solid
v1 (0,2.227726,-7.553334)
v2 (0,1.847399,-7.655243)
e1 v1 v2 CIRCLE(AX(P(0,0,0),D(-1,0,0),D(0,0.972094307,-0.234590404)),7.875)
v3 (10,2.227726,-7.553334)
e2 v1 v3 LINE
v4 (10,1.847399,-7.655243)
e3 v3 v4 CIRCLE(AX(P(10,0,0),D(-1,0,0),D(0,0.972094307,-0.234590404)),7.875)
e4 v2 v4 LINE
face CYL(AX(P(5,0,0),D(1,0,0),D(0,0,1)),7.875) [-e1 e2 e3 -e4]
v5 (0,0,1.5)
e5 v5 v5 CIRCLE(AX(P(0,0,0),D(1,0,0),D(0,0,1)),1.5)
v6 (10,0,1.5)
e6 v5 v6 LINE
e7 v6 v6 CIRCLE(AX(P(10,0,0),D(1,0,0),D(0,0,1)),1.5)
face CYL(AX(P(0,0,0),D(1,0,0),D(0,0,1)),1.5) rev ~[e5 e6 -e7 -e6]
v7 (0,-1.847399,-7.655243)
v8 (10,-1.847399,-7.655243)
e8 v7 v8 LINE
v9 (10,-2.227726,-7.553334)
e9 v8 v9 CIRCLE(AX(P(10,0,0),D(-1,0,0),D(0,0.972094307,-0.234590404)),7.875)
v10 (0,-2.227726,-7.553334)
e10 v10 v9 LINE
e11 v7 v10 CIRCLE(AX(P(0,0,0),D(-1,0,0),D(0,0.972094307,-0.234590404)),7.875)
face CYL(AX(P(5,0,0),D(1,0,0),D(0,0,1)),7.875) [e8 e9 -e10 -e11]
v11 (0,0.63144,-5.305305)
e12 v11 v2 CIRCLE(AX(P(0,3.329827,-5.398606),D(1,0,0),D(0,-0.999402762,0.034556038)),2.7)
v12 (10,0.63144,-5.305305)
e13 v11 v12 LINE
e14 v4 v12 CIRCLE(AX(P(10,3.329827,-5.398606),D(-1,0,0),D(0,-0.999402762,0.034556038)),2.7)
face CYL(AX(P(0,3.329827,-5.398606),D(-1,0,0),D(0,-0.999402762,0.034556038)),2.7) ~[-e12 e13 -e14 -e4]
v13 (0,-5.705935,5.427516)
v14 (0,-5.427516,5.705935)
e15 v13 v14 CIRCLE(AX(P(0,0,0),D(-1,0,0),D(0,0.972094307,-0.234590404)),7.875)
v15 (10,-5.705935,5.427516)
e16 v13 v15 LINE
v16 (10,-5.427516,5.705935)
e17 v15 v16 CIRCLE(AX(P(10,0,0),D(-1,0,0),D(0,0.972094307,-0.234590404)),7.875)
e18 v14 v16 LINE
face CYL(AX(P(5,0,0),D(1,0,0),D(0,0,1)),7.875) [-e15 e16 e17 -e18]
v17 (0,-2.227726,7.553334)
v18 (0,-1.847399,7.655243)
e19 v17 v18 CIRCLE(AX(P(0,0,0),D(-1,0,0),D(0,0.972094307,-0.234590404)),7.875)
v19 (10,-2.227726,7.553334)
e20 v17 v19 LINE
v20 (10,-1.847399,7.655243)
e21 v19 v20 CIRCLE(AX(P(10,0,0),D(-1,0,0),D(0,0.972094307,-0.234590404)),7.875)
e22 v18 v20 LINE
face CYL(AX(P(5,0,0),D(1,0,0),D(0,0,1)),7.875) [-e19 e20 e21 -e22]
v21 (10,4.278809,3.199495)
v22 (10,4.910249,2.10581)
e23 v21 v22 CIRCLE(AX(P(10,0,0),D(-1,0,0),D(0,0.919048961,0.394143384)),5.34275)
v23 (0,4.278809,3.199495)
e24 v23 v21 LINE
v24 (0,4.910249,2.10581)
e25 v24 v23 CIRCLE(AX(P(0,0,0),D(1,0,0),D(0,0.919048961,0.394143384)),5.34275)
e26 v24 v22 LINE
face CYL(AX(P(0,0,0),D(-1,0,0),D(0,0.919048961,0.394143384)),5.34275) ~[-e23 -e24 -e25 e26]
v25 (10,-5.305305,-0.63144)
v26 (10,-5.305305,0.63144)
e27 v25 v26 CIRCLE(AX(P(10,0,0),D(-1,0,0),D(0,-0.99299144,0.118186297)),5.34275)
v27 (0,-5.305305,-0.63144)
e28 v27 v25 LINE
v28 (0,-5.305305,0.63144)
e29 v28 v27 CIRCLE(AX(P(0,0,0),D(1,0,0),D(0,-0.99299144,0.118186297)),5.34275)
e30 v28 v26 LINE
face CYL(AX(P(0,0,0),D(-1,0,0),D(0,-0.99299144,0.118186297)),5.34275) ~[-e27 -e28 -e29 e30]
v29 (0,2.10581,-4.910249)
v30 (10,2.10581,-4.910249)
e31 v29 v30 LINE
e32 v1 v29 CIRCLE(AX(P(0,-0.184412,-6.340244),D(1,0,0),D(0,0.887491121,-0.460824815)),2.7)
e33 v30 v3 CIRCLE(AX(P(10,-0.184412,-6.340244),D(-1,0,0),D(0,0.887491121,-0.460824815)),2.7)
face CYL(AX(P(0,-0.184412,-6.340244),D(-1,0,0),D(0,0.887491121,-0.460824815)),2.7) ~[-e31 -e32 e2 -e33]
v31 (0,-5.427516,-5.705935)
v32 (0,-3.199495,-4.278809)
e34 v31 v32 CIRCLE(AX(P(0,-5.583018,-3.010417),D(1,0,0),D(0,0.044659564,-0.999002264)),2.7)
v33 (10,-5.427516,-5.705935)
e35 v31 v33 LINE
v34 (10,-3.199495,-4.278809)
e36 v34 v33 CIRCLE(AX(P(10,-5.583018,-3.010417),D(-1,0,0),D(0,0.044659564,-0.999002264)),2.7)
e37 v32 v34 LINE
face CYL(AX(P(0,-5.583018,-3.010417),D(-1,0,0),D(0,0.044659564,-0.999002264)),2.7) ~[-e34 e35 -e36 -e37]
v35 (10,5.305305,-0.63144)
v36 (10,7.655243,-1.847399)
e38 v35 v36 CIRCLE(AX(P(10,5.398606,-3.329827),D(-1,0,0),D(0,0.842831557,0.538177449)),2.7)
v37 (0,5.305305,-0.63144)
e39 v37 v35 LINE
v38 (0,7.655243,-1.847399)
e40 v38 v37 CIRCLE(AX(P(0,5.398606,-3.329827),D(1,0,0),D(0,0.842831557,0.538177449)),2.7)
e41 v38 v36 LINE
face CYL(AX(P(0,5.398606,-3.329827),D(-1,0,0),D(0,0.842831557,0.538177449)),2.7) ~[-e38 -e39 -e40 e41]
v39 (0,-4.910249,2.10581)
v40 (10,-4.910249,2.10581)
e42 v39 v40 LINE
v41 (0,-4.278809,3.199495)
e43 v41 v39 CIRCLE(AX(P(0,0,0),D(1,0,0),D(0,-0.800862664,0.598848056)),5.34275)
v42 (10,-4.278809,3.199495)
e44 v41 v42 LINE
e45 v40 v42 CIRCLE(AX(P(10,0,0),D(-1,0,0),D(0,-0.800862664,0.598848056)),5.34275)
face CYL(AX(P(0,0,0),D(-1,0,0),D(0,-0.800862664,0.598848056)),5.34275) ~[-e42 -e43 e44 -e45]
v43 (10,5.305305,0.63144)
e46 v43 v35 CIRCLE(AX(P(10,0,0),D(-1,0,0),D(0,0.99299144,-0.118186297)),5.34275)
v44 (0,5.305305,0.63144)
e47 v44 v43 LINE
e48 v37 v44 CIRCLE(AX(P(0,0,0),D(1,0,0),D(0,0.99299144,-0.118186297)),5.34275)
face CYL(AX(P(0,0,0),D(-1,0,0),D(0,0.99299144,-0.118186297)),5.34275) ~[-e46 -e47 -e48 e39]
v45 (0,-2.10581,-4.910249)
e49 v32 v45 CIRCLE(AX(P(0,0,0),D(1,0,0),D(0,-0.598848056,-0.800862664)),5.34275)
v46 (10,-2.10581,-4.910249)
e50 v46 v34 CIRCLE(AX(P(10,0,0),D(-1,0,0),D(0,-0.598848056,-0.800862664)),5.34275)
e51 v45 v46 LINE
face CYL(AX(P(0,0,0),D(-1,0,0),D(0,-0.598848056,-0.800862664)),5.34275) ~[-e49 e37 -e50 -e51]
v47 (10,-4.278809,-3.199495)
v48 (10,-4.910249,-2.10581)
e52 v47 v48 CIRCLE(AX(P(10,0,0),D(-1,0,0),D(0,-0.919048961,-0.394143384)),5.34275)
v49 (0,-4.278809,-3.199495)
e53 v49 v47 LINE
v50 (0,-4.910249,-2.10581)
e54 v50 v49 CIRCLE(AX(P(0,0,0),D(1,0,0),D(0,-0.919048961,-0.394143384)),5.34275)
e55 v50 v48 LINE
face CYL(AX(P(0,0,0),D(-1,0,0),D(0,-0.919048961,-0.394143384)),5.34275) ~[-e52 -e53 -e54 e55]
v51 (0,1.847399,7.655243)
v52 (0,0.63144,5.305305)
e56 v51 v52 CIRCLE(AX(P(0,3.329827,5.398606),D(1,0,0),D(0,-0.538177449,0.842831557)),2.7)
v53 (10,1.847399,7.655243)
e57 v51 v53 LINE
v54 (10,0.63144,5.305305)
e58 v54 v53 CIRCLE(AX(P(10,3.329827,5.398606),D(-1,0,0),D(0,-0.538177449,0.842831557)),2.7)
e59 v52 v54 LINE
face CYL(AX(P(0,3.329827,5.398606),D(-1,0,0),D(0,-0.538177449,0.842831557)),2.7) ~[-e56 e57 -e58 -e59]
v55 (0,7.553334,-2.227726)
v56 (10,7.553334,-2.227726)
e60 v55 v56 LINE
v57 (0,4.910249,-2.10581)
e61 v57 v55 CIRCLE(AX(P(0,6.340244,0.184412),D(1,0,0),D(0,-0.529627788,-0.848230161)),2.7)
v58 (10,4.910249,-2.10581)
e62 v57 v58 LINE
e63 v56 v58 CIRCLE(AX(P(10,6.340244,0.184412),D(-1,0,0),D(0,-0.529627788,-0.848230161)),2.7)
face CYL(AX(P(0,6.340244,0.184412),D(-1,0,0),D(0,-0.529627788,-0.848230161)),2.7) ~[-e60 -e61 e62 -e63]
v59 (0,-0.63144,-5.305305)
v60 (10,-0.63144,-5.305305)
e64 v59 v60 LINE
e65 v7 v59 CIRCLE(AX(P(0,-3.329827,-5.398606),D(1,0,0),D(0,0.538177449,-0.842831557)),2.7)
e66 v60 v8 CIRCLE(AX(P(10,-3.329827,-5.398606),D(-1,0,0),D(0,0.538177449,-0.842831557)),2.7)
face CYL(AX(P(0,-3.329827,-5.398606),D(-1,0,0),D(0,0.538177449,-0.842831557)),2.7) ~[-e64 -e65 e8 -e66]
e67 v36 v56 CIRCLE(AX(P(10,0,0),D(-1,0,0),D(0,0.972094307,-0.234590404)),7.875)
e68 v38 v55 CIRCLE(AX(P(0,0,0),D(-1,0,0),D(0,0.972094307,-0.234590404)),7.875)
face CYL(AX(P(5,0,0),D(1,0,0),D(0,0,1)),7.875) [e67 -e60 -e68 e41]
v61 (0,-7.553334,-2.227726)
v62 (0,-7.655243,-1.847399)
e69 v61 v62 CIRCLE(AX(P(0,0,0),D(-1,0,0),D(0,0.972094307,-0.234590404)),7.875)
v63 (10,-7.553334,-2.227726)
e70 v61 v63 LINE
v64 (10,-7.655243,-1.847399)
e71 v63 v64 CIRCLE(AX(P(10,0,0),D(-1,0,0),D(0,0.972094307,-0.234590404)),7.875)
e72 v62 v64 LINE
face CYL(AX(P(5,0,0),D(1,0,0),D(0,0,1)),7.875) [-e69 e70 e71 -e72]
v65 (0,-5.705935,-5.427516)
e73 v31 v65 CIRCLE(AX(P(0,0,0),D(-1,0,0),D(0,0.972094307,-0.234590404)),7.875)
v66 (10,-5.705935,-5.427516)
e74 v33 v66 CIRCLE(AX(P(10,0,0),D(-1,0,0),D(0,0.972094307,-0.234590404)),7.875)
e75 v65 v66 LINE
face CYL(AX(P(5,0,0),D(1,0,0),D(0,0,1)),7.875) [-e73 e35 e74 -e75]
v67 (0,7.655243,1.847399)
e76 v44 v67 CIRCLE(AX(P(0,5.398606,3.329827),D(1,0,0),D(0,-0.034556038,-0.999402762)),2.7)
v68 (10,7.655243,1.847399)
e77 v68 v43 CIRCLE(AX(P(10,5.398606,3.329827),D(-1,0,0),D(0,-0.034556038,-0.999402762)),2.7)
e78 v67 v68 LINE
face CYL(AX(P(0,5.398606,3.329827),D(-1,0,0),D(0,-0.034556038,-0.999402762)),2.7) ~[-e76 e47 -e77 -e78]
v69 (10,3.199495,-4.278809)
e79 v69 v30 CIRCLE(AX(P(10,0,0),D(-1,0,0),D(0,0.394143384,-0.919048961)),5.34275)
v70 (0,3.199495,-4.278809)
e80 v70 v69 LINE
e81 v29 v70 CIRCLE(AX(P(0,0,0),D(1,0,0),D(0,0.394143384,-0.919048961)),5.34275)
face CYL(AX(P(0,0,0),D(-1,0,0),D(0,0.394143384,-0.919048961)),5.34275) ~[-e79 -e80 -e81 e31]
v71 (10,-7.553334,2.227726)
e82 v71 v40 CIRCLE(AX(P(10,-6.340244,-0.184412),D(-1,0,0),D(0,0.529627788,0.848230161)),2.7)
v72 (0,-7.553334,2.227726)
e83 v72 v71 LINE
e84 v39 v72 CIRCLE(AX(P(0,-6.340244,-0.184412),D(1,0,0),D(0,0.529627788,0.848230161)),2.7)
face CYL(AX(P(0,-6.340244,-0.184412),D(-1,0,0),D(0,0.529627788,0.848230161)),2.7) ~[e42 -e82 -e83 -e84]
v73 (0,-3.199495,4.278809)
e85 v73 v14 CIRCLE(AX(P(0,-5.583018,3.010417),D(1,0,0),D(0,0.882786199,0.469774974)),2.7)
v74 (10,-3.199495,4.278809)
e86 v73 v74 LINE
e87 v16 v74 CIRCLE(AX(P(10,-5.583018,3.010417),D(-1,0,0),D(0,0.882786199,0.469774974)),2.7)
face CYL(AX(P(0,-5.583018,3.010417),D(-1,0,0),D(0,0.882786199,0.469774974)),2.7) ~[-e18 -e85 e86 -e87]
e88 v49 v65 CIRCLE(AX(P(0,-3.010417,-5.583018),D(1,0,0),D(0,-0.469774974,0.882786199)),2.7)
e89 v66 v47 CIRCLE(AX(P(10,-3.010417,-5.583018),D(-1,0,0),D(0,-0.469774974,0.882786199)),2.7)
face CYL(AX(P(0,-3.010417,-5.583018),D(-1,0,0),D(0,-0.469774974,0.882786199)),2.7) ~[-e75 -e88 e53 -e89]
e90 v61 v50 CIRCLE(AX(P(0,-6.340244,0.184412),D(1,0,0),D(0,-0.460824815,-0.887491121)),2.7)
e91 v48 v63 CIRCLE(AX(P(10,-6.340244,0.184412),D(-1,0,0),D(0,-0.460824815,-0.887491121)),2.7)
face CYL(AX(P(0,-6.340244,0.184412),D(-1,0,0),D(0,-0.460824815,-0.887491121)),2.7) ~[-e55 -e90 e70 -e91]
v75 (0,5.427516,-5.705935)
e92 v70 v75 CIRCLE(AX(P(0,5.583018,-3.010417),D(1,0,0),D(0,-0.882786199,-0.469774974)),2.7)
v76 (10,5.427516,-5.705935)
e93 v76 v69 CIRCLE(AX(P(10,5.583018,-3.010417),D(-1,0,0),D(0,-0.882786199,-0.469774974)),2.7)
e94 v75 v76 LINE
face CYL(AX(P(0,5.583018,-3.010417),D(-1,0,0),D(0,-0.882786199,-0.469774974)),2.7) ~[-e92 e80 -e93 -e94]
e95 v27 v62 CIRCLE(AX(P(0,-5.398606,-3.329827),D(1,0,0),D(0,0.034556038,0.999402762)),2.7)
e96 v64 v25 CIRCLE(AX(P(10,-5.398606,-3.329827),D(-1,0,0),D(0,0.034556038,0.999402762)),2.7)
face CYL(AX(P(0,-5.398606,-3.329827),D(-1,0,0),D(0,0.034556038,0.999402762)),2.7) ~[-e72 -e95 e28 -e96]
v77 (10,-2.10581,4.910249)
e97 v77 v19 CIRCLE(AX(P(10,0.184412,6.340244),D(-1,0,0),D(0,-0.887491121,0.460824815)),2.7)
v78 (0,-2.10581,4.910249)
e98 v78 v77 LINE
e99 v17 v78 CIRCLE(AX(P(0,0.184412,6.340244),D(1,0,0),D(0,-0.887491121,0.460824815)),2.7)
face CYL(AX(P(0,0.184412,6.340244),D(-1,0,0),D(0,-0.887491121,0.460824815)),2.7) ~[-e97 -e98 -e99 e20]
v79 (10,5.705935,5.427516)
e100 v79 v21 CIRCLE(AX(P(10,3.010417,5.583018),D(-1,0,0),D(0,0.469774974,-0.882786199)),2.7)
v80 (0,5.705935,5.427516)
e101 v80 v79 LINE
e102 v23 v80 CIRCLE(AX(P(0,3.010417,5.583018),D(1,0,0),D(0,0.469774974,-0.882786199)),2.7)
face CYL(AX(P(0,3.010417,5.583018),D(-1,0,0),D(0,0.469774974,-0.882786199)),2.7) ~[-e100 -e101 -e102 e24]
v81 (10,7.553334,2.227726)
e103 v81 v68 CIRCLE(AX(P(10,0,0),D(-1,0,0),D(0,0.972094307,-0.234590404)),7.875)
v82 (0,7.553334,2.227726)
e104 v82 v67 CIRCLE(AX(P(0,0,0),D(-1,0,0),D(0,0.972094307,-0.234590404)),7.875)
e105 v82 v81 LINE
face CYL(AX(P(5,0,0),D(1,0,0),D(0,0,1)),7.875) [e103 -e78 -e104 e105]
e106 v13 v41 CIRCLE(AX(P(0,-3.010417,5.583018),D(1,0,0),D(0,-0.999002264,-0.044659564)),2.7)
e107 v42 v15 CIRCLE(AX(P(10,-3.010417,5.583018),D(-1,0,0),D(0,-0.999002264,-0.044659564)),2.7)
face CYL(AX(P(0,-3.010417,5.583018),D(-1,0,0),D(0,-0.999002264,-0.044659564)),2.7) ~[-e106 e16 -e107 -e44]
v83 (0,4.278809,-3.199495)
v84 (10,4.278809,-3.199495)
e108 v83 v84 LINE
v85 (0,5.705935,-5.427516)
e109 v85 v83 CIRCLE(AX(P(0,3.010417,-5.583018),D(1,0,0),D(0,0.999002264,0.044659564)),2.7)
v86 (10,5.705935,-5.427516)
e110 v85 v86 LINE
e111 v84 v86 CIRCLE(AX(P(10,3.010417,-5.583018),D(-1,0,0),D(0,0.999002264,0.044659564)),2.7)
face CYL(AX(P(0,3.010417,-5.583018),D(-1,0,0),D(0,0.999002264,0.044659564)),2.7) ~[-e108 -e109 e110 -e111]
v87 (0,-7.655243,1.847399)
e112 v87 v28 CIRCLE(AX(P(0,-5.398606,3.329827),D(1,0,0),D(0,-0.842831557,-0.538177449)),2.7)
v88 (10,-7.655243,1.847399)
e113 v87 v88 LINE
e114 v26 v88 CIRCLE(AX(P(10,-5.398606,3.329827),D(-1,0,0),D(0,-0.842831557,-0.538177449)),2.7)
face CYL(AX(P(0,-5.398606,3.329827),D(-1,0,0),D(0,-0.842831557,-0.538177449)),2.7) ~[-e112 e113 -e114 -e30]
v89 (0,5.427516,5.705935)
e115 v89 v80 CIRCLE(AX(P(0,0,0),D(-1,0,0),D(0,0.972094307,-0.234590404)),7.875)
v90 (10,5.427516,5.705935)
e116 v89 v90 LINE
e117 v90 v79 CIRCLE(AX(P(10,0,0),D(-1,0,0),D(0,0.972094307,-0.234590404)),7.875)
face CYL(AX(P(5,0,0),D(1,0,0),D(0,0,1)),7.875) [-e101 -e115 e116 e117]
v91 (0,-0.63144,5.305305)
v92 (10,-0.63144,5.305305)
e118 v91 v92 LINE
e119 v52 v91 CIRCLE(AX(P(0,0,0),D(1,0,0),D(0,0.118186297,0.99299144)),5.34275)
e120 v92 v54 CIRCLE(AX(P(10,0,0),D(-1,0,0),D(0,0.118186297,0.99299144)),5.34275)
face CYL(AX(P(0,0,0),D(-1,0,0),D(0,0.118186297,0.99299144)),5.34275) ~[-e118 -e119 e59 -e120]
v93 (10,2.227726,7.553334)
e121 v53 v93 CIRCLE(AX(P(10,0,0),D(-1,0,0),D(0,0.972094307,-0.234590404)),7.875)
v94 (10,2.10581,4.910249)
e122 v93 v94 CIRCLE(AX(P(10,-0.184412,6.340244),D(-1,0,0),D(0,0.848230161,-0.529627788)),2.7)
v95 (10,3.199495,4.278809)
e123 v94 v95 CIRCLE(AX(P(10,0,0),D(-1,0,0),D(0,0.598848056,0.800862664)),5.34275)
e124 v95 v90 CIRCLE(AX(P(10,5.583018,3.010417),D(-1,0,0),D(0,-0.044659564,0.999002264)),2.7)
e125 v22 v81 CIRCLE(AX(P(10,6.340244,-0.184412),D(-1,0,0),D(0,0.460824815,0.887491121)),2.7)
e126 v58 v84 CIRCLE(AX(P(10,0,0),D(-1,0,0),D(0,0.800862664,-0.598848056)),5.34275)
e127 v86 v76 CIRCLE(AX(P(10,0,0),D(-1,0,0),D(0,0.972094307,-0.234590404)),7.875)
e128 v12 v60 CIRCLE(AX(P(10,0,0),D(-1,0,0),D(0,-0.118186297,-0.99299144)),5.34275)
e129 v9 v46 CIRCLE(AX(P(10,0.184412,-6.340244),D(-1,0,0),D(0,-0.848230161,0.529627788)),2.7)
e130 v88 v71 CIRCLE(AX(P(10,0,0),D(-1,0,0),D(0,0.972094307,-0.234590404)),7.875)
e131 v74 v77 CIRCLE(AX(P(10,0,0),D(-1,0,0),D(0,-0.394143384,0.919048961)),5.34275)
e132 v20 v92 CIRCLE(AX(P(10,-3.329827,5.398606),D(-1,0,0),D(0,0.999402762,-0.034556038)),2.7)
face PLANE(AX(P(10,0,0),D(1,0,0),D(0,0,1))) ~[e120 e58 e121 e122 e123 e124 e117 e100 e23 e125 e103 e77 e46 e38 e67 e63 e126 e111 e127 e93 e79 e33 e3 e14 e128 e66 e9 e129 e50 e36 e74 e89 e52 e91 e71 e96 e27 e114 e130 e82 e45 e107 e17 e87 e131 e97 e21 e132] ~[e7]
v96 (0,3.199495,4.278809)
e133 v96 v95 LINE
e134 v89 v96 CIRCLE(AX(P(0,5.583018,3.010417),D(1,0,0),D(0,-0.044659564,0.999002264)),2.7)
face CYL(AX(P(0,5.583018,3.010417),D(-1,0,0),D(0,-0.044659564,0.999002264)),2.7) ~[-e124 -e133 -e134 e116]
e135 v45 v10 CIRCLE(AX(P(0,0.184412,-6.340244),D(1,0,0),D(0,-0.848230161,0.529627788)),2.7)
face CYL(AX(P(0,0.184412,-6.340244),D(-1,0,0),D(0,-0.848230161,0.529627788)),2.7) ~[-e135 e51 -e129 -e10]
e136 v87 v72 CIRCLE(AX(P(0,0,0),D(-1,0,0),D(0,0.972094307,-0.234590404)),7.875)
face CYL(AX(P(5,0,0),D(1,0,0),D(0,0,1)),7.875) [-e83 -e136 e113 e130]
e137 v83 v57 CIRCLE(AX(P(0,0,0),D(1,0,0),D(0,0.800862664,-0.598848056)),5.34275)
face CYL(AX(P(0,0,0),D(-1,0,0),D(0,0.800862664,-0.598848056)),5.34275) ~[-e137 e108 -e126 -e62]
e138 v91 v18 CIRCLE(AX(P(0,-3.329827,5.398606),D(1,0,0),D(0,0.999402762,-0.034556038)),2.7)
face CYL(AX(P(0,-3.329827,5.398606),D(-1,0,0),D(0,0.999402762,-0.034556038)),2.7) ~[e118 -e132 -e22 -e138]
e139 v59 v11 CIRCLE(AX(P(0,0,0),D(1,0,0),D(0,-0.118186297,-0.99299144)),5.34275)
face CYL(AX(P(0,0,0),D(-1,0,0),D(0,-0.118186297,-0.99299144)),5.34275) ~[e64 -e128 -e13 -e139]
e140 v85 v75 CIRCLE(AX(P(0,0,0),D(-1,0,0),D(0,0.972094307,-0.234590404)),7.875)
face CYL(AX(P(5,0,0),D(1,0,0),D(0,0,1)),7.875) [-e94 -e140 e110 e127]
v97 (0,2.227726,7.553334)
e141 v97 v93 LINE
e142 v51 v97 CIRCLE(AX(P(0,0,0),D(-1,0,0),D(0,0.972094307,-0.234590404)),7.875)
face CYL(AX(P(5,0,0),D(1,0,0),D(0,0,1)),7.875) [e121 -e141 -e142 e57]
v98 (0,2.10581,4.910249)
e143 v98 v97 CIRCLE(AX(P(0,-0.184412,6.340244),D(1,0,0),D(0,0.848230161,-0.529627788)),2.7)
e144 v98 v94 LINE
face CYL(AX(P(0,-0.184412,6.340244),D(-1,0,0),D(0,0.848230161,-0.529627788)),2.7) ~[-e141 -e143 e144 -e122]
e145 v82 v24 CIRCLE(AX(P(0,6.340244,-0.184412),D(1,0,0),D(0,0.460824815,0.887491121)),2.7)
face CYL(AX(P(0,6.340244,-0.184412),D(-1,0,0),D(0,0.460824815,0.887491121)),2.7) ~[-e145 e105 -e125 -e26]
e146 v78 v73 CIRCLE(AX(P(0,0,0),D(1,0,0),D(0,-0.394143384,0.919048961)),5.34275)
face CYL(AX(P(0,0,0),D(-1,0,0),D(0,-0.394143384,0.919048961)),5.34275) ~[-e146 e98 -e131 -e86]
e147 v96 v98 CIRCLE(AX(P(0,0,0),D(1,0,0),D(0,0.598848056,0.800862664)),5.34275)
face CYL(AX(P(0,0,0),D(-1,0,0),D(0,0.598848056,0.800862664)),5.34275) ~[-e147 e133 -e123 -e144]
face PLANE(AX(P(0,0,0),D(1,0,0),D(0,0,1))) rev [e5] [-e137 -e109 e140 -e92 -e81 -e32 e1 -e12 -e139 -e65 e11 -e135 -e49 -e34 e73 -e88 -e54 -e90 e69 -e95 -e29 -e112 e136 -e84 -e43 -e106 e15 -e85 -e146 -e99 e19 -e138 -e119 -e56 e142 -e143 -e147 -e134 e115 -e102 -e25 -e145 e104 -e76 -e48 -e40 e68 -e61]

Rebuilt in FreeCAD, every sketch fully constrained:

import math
import FreeCAD as App
import Part
import Sketcher


def add_polygon(sketch, points):
    """Adds a closed chain of lines whose ends are joined by coincident constraints."""
    first, n = sketch.GeometryCount, len(points)
    for a, b in zip(points, points[1:] + points[:1]):
        sketch.addGeometry(Part.LineSegment(App.Vector(*a, 0), App.Vector(*b, 0)), False)
    for i in range(n):
        sketch.addConstraint(Sketcher.Constraint("Coincident", first + i, 2, first + (i + 1) % n, 1))

doc = App.newDocument("Part")
body = doc.addObject("PartDesign::Body", "Body")

# Sketch on XZ plane
sketch1 = body.newObject("Sketcher::SketchObject", "Sketch")
sketch1.AttachmentSupport = (doc.getObject("XZ_Plane"), [""])
sketch1.MapMode = "FlatFace"
add_polygon(sketch1, [(0, -8), (0, 0), (10, 0), (10, -8)])  # lines 0-3
sketch1.addConstraint(Sketcher.Constraint("Vertical", 0))
sketch1.addConstraint(Sketcher.Constraint("Horizontal", 1))
sketch1.addConstraint(Sketcher.Constraint("Vertical", 2))
sketch1.addConstraint(Sketcher.Constraint("Horizontal", 3))
sketch1.addConstraint(Sketcher.Constraint("Coincident", 0, 2, -1, 1))
sketch1.addConstraint(Sketcher.Constraint("DistanceX", 1, 1, 1, 2, 10.0))
sketch1.addConstraint(Sketcher.Constraint("DistanceY", 0, 1, 0, 2, 7.875))
revolution = body.newObject("PartDesign::Revolution", "Revolution")
revolution.Profile = sketch1
revolution.ReferenceAxis = (sketch1, ["H_Axis"])
revolution.Angle = 360

# Sketch on YZ plane
sketch2 = body.newObject("Sketcher::SketchObject", "Sketch001")
sketch2.AttachmentSupport = (doc.getObject("YZ_Plane"), [""])
sketch2.MapMode = "FlatFace"
sketch2.addGeometry(Part.ArcOfCircle(Part.Circle(App.Vector(0, 0, 0), App.Vector(0, 0, 1), 5.3), math.radians(-6.79), math.radians(6.79)), False)
sketch2.addGeometry(Part.ArcOfCircle(Part.Circle(App.Vector(5.4, -3.3, 0), App.Vector(0, 0, 1), 2.7), math.radians(33), math.radians(92)), False)
sketch2.addGeometry(Part.ArcOfCircle(Part.Circle(App.Vector(0, 0, 0), App.Vector(0, 0, 1), 7.9), math.radians(-14), math.radians(14)), False)
sketch2.addGeometry(Part.ArcOfCircle(Part.Circle(App.Vector(5.4, 3.3, 0), App.Vector(0, 0, 1), 2.7), math.radians(-92), math.radians(-33)), False)
sketch2.addConstraint(Sketcher.Constraint("Coincident", 0, 1, 1, 2))
sketch2.addConstraint(Sketcher.Constraint("Coincident", 1, 1, 2, 1))
sketch2.addConstraint(Sketcher.Constraint("Coincident", 2, 2, 3, 2))
sketch2.addConstraint(Sketcher.Constraint("Coincident", 3, 1, 0, 2))
sketch2.addConstraint(Sketcher.Constraint("Coincident", 0, 3, -1, 1))
sketch2.addConstraint(Sketcher.Constraint("Coincident", 2, 3, -1, 1))
sketch2.addConstraint(Sketcher.Constraint("Equal", 1, 3))
sketch2.addConstraint(Sketcher.Constraint("Symmetric", 1, 3, 3, 3, -1))
sketch2.addConstraint(Sketcher.Constraint("Radius", 1, 2.7))
sketch2.addConstraint(Sketcher.Constraint("Radius", 2, 7.9004))
sketch2.addConstraint(Sketcher.Constraint("Radius", 0, 5.34275))
sketch2.addConstraint(Sketcher.Constraint("DistanceX", 0, 1, 1, 3, 0.093301))
sketch2.addConstraint(Sketcher.Constraint("DistanceY", 0, 1, -1, 1, 0.63144))
pocket1 = body.newObject("PartDesign::Pocket", "Pocket")
pocket1.Profile = sketch2
pocket1.Type = "ThroughAll"
pocket1.Reversed = True
doc.recompute()

polarpattern = body.newObject("PartDesign::PolarPattern", "PolarPattern")
polarpattern.Originals = [pocket1]
polarpattern.Axis = (doc.getObject("X_Axis"), [""])
polarpattern.Angle = 360
polarpattern.Occurrences = 12
body.Tip = polarpattern

# Sketch on YZ plane
sketch3 = body.newObject("Sketcher::SketchObject", "Sketch002")
sketch3.AttachmentSupport = (doc.getObject("YZ_Plane"), [""])
sketch3.MapMode = "FlatFace"
sketch3.addGeometry(Part.Circle(App.Vector(0, 0, 0), App.Vector(0, 0, 1), 1.5), False)
sketch3.addConstraint(Sketcher.Constraint("Coincident", 0, 3, -1, 1))
sketch3.addConstraint(Sketcher.Constraint("Diameter", 0, 3.0))
pocket2 = body.newObject("PartDesign::Pocket", "Pocket001")
pocket2.Profile = sketch3
pocket2.Length = 100.000102
pocket2.Midplane = True

doc.recompute()
